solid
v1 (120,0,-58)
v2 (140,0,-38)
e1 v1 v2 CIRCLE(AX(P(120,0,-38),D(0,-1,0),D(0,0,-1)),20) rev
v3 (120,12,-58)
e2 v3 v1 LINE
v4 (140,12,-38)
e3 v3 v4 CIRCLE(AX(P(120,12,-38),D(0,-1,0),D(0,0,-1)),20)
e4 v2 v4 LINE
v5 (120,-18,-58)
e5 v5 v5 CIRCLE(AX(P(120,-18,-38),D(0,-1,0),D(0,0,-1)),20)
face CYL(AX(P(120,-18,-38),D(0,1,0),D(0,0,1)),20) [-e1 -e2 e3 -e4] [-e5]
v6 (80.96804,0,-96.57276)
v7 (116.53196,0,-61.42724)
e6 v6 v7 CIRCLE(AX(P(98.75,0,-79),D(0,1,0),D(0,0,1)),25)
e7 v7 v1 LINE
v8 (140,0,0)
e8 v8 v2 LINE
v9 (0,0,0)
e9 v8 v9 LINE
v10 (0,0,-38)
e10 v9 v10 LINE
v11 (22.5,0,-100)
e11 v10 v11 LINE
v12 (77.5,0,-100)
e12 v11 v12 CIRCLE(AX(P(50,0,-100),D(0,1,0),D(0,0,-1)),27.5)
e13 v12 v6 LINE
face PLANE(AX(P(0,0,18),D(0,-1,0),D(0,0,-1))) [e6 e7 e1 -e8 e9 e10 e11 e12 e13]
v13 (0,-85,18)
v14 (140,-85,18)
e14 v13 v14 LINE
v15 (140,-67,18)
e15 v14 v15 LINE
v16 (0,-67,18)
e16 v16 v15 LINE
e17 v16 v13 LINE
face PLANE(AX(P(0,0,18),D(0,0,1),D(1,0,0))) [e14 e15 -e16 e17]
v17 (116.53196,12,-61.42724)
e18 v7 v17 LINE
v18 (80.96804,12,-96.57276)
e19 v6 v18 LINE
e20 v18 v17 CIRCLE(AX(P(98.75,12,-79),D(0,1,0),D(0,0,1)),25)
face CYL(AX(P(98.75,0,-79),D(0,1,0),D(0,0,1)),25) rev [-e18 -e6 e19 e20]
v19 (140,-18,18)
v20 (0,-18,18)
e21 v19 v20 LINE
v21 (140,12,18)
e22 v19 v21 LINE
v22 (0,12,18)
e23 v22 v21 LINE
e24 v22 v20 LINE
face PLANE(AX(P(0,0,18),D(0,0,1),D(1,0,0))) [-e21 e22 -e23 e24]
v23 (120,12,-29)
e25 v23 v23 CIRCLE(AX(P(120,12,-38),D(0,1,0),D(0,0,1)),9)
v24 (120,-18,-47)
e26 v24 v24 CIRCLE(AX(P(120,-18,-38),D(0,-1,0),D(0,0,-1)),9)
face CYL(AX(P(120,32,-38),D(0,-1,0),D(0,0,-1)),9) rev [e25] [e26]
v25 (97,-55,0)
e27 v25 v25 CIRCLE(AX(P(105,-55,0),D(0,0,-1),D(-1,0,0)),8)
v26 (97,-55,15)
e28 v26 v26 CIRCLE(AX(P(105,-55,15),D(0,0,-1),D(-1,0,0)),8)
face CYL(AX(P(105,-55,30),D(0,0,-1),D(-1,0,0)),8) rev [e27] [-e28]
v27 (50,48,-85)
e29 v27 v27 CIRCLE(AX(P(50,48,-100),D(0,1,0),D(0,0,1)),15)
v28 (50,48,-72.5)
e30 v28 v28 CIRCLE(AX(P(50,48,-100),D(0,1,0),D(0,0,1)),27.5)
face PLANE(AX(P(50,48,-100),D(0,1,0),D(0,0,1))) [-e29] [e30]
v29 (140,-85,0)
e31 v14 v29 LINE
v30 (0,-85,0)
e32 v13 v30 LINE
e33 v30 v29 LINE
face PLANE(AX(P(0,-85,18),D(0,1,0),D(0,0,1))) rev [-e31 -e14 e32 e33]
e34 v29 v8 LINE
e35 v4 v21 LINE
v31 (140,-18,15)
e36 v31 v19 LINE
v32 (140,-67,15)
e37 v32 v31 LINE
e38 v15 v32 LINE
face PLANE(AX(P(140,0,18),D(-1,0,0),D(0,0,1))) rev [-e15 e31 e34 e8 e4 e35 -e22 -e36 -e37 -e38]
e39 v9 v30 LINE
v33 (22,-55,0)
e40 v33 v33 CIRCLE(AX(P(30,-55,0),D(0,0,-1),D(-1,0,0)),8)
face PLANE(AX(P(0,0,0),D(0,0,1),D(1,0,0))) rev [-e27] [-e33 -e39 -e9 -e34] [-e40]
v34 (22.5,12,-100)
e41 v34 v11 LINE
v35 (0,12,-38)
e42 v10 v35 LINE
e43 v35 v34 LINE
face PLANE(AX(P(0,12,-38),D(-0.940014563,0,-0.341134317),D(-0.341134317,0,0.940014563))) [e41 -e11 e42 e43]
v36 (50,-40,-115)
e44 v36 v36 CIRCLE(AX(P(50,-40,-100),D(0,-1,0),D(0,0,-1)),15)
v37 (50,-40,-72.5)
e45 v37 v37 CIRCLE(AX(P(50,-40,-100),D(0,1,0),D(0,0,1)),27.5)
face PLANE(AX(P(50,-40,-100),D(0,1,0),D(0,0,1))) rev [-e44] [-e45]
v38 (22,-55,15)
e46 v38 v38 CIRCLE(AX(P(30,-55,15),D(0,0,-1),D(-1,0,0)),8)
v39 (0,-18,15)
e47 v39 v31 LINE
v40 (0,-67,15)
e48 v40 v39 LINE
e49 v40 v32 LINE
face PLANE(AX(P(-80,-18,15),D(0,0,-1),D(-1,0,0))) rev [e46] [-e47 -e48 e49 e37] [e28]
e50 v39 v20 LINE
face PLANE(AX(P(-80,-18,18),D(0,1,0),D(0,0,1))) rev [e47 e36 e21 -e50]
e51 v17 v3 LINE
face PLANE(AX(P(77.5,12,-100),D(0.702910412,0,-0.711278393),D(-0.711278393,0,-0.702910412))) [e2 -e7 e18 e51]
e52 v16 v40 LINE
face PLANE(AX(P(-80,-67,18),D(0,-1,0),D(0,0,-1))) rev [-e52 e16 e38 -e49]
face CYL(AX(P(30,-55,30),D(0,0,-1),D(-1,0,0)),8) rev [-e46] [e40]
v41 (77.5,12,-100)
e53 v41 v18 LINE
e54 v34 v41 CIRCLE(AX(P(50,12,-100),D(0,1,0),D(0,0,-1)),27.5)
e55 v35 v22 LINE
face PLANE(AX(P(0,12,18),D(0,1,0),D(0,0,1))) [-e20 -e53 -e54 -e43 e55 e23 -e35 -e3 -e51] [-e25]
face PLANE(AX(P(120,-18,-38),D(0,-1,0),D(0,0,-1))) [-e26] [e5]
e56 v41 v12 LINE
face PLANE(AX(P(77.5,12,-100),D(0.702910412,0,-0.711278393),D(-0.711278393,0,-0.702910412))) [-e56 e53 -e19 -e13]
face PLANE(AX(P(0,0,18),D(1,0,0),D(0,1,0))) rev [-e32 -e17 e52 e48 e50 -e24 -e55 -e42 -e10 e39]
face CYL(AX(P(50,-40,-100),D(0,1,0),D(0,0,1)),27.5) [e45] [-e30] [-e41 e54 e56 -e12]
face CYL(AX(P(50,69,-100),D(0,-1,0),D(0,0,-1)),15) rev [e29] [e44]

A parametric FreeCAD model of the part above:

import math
import FreeCAD as App
import Part
import Sketcher
from FreeCAD import Vector


def add_polygon(sketch, points):
    """Adds a closed chain of lines whose ends are joined by coincident constraints."""
    first, n = sketch.GeometryCount, len(points)
    for a, b in zip(points, points[1:] + points[:1]):
        sketch.addGeometry(Part.LineSegment(App.Vector(*a, 0), App.Vector(*b, 0)), False)
    for i in range(n):
        sketch.addConstraint(Sketcher.Constraint("Coincident", first + i, 2, first + (i + 1) % n, 1))

doc = App.newDocument("Part")
params = doc.addObject("Spreadsheet::Sheet", "Params")
for row, (alias, value) in enumerate([
    ("sketch1_width", "140 mm"),
    ("sketch1_height", "85 mm"),
    ("pad1_length", "18 mm"),
    ("sketch2_width", "49 mm"),
    ("sketch2_height", "3 mm"),
    ("pocket1_length", "220 mm"),
    ("sketch3_diameter", "16 mm"),
    ("pocket2_length", "30 mm"),
    ("sketch4_width", "12 mm"),
    ("sketch4_height", "56 mm"),
    ("pad2_length", "140 mm"),
    ("sketch5_diameter", "40 mm"),
    ("pad3_length", "18 mm"),
    ("pad3_length2", "12 mm"),
    ("sketch6_diameter", "18 mm"),
    ("pocket3_length", "50 mm"),
    ("sketch7_radius", "20 mm"),
    ("sketch7_radius2", "27.5 mm"),
    ("sketch7_width", "100 mm"),
    ("pad4_length", "12 mm"),
    ("sketch8_diameter", "55 mm"),
    ("pad5_length", "36 mm"),
    ("pad5_length2", "52 mm"),
    ("sketch9_diameter", "30 mm"),
    ("pocket4_length", "109 mm"),
    ("sketch10_radius", "25 mm"),
    ("pocket5_length", "12 mm"),
], start=1):
    params.set(f"A{row}", alias)
    params.set(f"B{row}", "=" + value)
    params.setAlias(f"B{row}", alias)

body = doc.addObject("PartDesign::Body", "Body")

# Sketch on XY plane
sketch1 = doc.addObject("Sketcher::SketchObject", "Sketch")
body.addObject(sketch1)
sketch1.AttachmentSupport = (doc.XY_Plane, [""])
sketch1.MapMode = "FlatFace"
add_polygon(sketch1, [(0, 0), (0, -85), (140, -85), (140, 0)])  # lines 0-3
sketch1.addConstraint([
    Sketcher.Constraint("Vertical", 0),
    Sketcher.Constraint("Horizontal", 1),
    Sketcher.Constraint("Vertical", 2),
    Sketcher.Constraint("Horizontal", 3),
    Sketcher.Constraint("Coincident", 3, 2, -1, 1),
    Sketcher.Constraint("DistanceX", 1, 1, 1, 2, 140.0),
    Sketcher.Constraint("DistanceY", 0, 2, 0, 1, 85.0),
])
sketch1.setExpression("Constraints[9]", "Params.sketch1_width")
sketch1.setExpression("Constraints[10]", "Params.sketch1_height")
pad1 = doc.addObject("PartDesign::Pad", "Pad")
body.addObject(pad1)
pad1.Profile = sketch1
pad1.setExpression("Length", "Params.pad1_length")

# Sketch on YZ plane
sketch2 = doc.addObject("Sketcher::SketchObject", "Sketch001")
body.addObject(sketch2)
sketch2.AttachmentSupport = (doc.YZ_Plane, [""])
sketch2.MapMode = "FlatFace"
sketch2.AttachmentOffset = App.Placement(Vector(0, 0, 140), App.Rotation())
add_polygon(sketch2, [(-18, 18), (-67, 18), (-67, 15), (-18, 15)])  # lines 0-3
sketch2.addConstraint([
    Sketcher.Constraint("Horizontal", 0),
    Sketcher.Constraint("Vertical", 1),
    Sketcher.Constraint("Horizontal", 2),
    Sketcher.Constraint("Vertical", 3),
    Sketcher.Constraint("DistanceX", 0, 2, 0, 1, 49.0),
    Sketcher.Constraint("DistanceY", 1, 2, 1, 1, 3.0),
    Sketcher.Constraint("DistanceX", 0, 2, -1, 1, 67.0),
    Sketcher.Constraint("DistanceY", -1, 1, 0, 2, 18.0),
])
sketch2.setExpression("Constraints[8]", "Params.sketch2_width")
sketch2.setExpression("Constraints[9]", "Params.sketch2_height")
pocket1 = doc.addObject("PartDesign::Pocket", "Pocket")
body.addObject(pocket1)
pocket1.Profile = sketch2
pocket1.setExpression("Length", "Params.pocket1_length")

# Sketch on XY plane
sketch3 = doc.addObject("Sketcher::SketchObject", "Sketch002")
body.addObject(sketch3)
sketch3.AttachmentSupport = (doc.XY_Plane, [""])
sketch3.MapMode = "FlatFace"
sketch3.addGeometry([
    Part.Circle(Vector(105, -55, 0), Vector(0, 0, 1), 8),
    Part.Circle(Vector(30, -55, 0), Vector(0, 0, 1), 8),
], False)
sketch3.addConstraint([
    Sketcher.Constraint("Equal", 0, 1),
    Sketcher.Constraint("Horizontal", 0, 3, 1, 3),
    Sketcher.Constraint("Diameter", 0, 16.0),
    Sketcher.Constraint("DistanceX", -1, 1, 0, 3, 105.0),
    Sketcher.Constraint("DistanceY", 0, 3, -1, 1, 55.0),
    Sketcher.Constraint("DistanceX", -1, 1, 1, 3, 30.0),
])
sketch3.setExpression("Constraints[2]", "Params.sketch3_diameter")
pocket2 = doc.addObject("PartDesign::Pocket", "Pocket001")
body.addObject(pocket2)
pocket2.Profile = sketch3
pocket2.setExpression("Length", "Params.pocket2_length")
pocket2.Reversed = True

# Sketch on YZ plane
sketch4 = doc.addObject("Sketcher::SketchObject", "Sketch003")
body.addObject(sketch4)
sketch4.AttachmentSupport = (doc.YZ_Plane, [""])
sketch4.MapMode = "FlatFace"
sketch4.AttachmentOffset = App.Placement(Vector(0, 0, 140), App.Rotation())
add_polygon(sketch4, [(12, 18), (0, 18), (0, -38), (12, -38)])  # lines 0-3
sketch4.addConstraint([
    Sketcher.Constraint("Horizontal", 0),
    Sketcher.Constraint("Vertical", 1),
    Sketcher.Constraint("Horizontal", 2),
    Sketcher.Constraint("Vertical", 3),
    Sketcher.Constraint("PointOnObject", 0, 2, -2),
    Sketcher.Constraint("DistanceX", 0, 2, 0, 1, 12.0),
    Sketcher.Constraint("DistanceY", 1, 2, 1, 1, 56.0),
    Sketcher.Constraint("DistanceY", -1, 1, 0, 2, 18.0),
])
sketch4.setExpression("Constraints[9]", "Params.sketch4_width")
sketch4.setExpression("Constraints[10]", "Params.sketch4_height")
pad2 = doc.addObject("PartDesign::Pad", "Pad001")
body.addObject(pad2)
pad2.Profile = sketch4
pad2.setExpression("Length", "Params.pad2_length")
pad2.Reversed = True

# Sketch on XZ plane
sketch5 = doc.addObject("Sketcher::SketchObject", "Sketch004")
body.addObject(sketch5)
sketch5.AttachmentSupport = (doc.XZ_Plane, [""])
sketch5.MapMode = "FlatFace"
sketch5.addGeometry(Part.Circle(Vector(120, -38, 0), Vector(0, 0, 1), 20), False)
sketch5.addConstraint([
    Sketcher.Constraint("Diameter", 0, 40.0),
    Sketcher.Constraint("DistanceX", -1, 1, 0, 3, 120.0),
    Sketcher.Constraint("DistanceY", 0, 3, -1, 1, 38.0),
])
sketch5.setExpression("Constraints[0]", "Params.sketch5_diameter")
pad3 = doc.addObject("PartDesign::Pad", "Pad002")
body.addObject(pad3)
pad3.Profile = sketch5
pad3.Type = "TwoLengths"
pad3.setExpression("Length", "Params.pad3_length")
pad3.setExpression("Length2", "Params.pad3_length2")

# Sketch on XZ plane
sketch6 = doc.addObject("Sketcher::SketchObject", "Sketch005")
body.addObject(sketch6)
sketch6.AttachmentSupport = (doc.XZ_Plane, [""])
sketch6.MapMode = "FlatFace"
sketch6.AttachmentOffset = App.Placement(Vector(0, 0, 18), App.Rotation())
sketch6.addGeometry(Part.Circle(Vector(120, -38, 0), Vector(0, 0, 1), 9), False)
sketch6.addConstraint([
    Sketcher.Constraint("Diameter", 0, 18.0),
    Sketcher.Constraint("DistanceX", -1, 1, 0, 3, 120.0),
    Sketcher.Constraint("DistanceY", 0, 3, -1, 1, 38.0),
])
sketch6.setExpression("Constraints[0]", "Params.sketch6_diameter")
pocket3 = doc.addObject("PartDesign::Pocket", "Pocket002")
body.addObject(pocket3)
pocket3.Profile = sketch6
pocket3.setExpression("Length", "Params.pocket3_length")

# Sketch on XZ plane
sketch7 = doc.addObject("Sketcher::SketchObject", "Sketch006")
body.addObject(sketch7)
sketch7.AttachmentSupport = (doc.XZ_Plane, [""])
sketch7.MapMode = "FlatFace"
sketch7.addGeometry([
    Part.LineSegment(Vector(0, -38, 0), Vector(22, -100, 0)),  # 0
    Part.ArcOfCircle(Part.Circle(Vector(50, -100, 0), Vector(0, 0, 1), 28), math.radians(0), math.radians(180)),  # 1
    Part.LineSegment(Vector(78, -100, 0), Vector(120, -58, 0)),  # 2
    Part.ArcOfCircle(Part.Circle(Vector(120, -38, 0), Vector(0, 0, 1), 20), math.radians(180), math.radians(270)),  # 3
    Part.LineSegment(Vector(100, -38, 0), Vector(0, -38, 0)),  # 4
], False)
sketch7.addConstraint([
    Sketcher.Constraint("Coincident", 0, 2, 1, 2),
    Sketcher.Constraint("Coincident", 1, 1, 2, 1),
    Sketcher.Constraint("Coincident", 2, 2, 3, 2),
    Sketcher.Constraint("Coincident", 3, 1, 4, 1),
    Sketcher.Constraint("Coincident", 4, 2, 0, 1),
    Sketcher.Constraint("Horizontal", 4),
    Sketcher.Constraint("PointOnObject", 4, 2, -2),
    Sketcher.Constraint("Horizontal", 1, 3, 0, 2),
    Sketcher.Constraint("Horizontal", 0, 2, 1, 1),
    Sketcher.Constraint("Vertical", 3, 3, 2, 2),
    Sketcher.Constraint("Radius", 3, 20.0),
    Sketcher.Constraint("Radius", 1, 27.5),
    Sketcher.Constraint("DistanceX", 4, 2, 4, 1, 100.0),
    Sketcher.Constraint("DistanceX", -1, 1, 1, 3, 50.0),
    Sketcher.Constraint("DistanceY", 1, 3, -1, 1, 100.0),
    Sketcher.Constraint("DistanceY", 3, 3, -1, 1, 38.0),
    Sketcher.Constraint("DistanceY", 3, 1, -1, 1, 38.0),
])
sketch7.setExpression("Constraints[10]", "Params.sketch7_radius")
sketch7.setExpression("Constraints[11]", "Params.sketch7_radius2")
sketch7.setExpression("Constraints[12]", "Params.sketch7_width")
pad4 = doc.addObject("PartDesign::Pad", "Pad003")
body.addObject(pad4)
pad4.Profile = sketch7
pad4.setExpression("Length", "Params.pad4_length")
pad4.Reversed = True

# Sketch on XZ plane
sketch8 = doc.addObject("Sketcher::SketchObject", "Sketch007")
body.addObject(sketch8)
sketch8.AttachmentSupport = (doc.XZ_Plane, [""])
sketch8.MapMode = "FlatFace"
sketch8.AttachmentOffset = App.Placement(Vector(0, 0, -12), App.Rotation())
sketch8.addGeometry(Part.Circle(Vector(50, -100, 0), Vector(0, 0, 1), 28), False)
sketch8.addConstraint([
    Sketcher.Constraint("Diameter", 0, 55.0),
    Sketcher.Constraint("DistanceX", -1, 1, 0, 3, 50.0),
    Sketcher.Constraint("DistanceY", 0, 3, -1, 1, 100.0),
])
sketch8.setExpression("Constraints[0]", "Params.sketch8_diameter")
pad5 = doc.addObject("PartDesign::Pad", "Pad004")
body.addObject(pad5)
pad5.Profile = sketch8
pad5.Type = "TwoLengths"
pad5.setExpression("Length", "Params.pad5_length")
pad5.setExpression("Length2", "Params.pad5_length2")
pad5.Reversed = True

# Sketch on XZ plane
sketch9 = doc.addObject("Sketcher::SketchObject", "Sketch008")
body.addObject(sketch9)
sketch9.AttachmentSupport = (doc.XZ_Plane, [""])
sketch9.MapMode = "FlatFace"
sketch9.AttachmentOffset = App.Placement(Vector(0, 0, 40), App.Rotation())
sketch9.addGeometry(Part.Circle(Vector(50, -100, 0), Vector(0, 0, 1), 15), False)
sketch9.addConstraint([
    Sketcher.Constraint("Diameter", 0, 30.0),
    Sketcher.Constraint("DistanceX", -1, 1, 0, 3, 50.0),
    Sketcher.Constraint("DistanceY", 0, 3, -1, 1, 100.0),
])
sketch9.setExpression("Constraints[0]", "Params.sketch9_diameter")
pocket4 = doc.addObject("PartDesign::Pocket", "Pocket003")
body.addObject(pocket4)
pocket4.Profile = sketch9
pocket4.setExpression("Length", "Params.pocket4_length")

# Sketch on XZ plane
sketch10 = doc.addObject("Sketcher::SketchObject", "Sketch009")
body.addObject(sketch10)
sketch10.AttachmentSupport = (doc.XZ_Plane, [""])
sketch10.MapMode = "FlatFace"
sketch10.AttachmentOffset = App.Placement(Vector(0, 0, -12), App.Rotation())
sketch10.addGeometry([
    Part.LineSegment(Vector(117, -61, 0), Vector(81, -97, 0)),
    Part.ArcOfCircle(Part.Circle(Vector(99, -79, 0), Vector(0, 0, 1), 25), math.radians(45), math.radians(225)),
], False)
sketch10.addConstraint([
    Sketcher.Constraint("Coincident", 0, 1, 1, 1),
    Sketcher.Constraint("Coincident", 1, 2, 0, 2),
    Sketcher.Constraint("Radius", 1, 25.0),
    Sketcher.Constraint("DistanceY", 1, 3, -1, 1, 79.0),
    Sketcher.Constraint("DistanceX", -1, 1, 1, 3, 98.75),
    Sketcher.Constraint("DistanceX", -1, 1, 0, 1, 116.53196),
    Sketcher.Constraint("DistanceX", -1, 1, 1, 2, 80.96804),
])
sketch10.setExpression("Constraints[2]", "Params.sketch10_radius")
pocket5 = doc.addObject("PartDesign::Pocket", "Pocket004")
body.addObject(pocket5)
pocket5.Profile = sketch10
pocket5.setExpression("Length", "Params.pocket5_length")
pocket5.Reversed = True

doc.recompute()
